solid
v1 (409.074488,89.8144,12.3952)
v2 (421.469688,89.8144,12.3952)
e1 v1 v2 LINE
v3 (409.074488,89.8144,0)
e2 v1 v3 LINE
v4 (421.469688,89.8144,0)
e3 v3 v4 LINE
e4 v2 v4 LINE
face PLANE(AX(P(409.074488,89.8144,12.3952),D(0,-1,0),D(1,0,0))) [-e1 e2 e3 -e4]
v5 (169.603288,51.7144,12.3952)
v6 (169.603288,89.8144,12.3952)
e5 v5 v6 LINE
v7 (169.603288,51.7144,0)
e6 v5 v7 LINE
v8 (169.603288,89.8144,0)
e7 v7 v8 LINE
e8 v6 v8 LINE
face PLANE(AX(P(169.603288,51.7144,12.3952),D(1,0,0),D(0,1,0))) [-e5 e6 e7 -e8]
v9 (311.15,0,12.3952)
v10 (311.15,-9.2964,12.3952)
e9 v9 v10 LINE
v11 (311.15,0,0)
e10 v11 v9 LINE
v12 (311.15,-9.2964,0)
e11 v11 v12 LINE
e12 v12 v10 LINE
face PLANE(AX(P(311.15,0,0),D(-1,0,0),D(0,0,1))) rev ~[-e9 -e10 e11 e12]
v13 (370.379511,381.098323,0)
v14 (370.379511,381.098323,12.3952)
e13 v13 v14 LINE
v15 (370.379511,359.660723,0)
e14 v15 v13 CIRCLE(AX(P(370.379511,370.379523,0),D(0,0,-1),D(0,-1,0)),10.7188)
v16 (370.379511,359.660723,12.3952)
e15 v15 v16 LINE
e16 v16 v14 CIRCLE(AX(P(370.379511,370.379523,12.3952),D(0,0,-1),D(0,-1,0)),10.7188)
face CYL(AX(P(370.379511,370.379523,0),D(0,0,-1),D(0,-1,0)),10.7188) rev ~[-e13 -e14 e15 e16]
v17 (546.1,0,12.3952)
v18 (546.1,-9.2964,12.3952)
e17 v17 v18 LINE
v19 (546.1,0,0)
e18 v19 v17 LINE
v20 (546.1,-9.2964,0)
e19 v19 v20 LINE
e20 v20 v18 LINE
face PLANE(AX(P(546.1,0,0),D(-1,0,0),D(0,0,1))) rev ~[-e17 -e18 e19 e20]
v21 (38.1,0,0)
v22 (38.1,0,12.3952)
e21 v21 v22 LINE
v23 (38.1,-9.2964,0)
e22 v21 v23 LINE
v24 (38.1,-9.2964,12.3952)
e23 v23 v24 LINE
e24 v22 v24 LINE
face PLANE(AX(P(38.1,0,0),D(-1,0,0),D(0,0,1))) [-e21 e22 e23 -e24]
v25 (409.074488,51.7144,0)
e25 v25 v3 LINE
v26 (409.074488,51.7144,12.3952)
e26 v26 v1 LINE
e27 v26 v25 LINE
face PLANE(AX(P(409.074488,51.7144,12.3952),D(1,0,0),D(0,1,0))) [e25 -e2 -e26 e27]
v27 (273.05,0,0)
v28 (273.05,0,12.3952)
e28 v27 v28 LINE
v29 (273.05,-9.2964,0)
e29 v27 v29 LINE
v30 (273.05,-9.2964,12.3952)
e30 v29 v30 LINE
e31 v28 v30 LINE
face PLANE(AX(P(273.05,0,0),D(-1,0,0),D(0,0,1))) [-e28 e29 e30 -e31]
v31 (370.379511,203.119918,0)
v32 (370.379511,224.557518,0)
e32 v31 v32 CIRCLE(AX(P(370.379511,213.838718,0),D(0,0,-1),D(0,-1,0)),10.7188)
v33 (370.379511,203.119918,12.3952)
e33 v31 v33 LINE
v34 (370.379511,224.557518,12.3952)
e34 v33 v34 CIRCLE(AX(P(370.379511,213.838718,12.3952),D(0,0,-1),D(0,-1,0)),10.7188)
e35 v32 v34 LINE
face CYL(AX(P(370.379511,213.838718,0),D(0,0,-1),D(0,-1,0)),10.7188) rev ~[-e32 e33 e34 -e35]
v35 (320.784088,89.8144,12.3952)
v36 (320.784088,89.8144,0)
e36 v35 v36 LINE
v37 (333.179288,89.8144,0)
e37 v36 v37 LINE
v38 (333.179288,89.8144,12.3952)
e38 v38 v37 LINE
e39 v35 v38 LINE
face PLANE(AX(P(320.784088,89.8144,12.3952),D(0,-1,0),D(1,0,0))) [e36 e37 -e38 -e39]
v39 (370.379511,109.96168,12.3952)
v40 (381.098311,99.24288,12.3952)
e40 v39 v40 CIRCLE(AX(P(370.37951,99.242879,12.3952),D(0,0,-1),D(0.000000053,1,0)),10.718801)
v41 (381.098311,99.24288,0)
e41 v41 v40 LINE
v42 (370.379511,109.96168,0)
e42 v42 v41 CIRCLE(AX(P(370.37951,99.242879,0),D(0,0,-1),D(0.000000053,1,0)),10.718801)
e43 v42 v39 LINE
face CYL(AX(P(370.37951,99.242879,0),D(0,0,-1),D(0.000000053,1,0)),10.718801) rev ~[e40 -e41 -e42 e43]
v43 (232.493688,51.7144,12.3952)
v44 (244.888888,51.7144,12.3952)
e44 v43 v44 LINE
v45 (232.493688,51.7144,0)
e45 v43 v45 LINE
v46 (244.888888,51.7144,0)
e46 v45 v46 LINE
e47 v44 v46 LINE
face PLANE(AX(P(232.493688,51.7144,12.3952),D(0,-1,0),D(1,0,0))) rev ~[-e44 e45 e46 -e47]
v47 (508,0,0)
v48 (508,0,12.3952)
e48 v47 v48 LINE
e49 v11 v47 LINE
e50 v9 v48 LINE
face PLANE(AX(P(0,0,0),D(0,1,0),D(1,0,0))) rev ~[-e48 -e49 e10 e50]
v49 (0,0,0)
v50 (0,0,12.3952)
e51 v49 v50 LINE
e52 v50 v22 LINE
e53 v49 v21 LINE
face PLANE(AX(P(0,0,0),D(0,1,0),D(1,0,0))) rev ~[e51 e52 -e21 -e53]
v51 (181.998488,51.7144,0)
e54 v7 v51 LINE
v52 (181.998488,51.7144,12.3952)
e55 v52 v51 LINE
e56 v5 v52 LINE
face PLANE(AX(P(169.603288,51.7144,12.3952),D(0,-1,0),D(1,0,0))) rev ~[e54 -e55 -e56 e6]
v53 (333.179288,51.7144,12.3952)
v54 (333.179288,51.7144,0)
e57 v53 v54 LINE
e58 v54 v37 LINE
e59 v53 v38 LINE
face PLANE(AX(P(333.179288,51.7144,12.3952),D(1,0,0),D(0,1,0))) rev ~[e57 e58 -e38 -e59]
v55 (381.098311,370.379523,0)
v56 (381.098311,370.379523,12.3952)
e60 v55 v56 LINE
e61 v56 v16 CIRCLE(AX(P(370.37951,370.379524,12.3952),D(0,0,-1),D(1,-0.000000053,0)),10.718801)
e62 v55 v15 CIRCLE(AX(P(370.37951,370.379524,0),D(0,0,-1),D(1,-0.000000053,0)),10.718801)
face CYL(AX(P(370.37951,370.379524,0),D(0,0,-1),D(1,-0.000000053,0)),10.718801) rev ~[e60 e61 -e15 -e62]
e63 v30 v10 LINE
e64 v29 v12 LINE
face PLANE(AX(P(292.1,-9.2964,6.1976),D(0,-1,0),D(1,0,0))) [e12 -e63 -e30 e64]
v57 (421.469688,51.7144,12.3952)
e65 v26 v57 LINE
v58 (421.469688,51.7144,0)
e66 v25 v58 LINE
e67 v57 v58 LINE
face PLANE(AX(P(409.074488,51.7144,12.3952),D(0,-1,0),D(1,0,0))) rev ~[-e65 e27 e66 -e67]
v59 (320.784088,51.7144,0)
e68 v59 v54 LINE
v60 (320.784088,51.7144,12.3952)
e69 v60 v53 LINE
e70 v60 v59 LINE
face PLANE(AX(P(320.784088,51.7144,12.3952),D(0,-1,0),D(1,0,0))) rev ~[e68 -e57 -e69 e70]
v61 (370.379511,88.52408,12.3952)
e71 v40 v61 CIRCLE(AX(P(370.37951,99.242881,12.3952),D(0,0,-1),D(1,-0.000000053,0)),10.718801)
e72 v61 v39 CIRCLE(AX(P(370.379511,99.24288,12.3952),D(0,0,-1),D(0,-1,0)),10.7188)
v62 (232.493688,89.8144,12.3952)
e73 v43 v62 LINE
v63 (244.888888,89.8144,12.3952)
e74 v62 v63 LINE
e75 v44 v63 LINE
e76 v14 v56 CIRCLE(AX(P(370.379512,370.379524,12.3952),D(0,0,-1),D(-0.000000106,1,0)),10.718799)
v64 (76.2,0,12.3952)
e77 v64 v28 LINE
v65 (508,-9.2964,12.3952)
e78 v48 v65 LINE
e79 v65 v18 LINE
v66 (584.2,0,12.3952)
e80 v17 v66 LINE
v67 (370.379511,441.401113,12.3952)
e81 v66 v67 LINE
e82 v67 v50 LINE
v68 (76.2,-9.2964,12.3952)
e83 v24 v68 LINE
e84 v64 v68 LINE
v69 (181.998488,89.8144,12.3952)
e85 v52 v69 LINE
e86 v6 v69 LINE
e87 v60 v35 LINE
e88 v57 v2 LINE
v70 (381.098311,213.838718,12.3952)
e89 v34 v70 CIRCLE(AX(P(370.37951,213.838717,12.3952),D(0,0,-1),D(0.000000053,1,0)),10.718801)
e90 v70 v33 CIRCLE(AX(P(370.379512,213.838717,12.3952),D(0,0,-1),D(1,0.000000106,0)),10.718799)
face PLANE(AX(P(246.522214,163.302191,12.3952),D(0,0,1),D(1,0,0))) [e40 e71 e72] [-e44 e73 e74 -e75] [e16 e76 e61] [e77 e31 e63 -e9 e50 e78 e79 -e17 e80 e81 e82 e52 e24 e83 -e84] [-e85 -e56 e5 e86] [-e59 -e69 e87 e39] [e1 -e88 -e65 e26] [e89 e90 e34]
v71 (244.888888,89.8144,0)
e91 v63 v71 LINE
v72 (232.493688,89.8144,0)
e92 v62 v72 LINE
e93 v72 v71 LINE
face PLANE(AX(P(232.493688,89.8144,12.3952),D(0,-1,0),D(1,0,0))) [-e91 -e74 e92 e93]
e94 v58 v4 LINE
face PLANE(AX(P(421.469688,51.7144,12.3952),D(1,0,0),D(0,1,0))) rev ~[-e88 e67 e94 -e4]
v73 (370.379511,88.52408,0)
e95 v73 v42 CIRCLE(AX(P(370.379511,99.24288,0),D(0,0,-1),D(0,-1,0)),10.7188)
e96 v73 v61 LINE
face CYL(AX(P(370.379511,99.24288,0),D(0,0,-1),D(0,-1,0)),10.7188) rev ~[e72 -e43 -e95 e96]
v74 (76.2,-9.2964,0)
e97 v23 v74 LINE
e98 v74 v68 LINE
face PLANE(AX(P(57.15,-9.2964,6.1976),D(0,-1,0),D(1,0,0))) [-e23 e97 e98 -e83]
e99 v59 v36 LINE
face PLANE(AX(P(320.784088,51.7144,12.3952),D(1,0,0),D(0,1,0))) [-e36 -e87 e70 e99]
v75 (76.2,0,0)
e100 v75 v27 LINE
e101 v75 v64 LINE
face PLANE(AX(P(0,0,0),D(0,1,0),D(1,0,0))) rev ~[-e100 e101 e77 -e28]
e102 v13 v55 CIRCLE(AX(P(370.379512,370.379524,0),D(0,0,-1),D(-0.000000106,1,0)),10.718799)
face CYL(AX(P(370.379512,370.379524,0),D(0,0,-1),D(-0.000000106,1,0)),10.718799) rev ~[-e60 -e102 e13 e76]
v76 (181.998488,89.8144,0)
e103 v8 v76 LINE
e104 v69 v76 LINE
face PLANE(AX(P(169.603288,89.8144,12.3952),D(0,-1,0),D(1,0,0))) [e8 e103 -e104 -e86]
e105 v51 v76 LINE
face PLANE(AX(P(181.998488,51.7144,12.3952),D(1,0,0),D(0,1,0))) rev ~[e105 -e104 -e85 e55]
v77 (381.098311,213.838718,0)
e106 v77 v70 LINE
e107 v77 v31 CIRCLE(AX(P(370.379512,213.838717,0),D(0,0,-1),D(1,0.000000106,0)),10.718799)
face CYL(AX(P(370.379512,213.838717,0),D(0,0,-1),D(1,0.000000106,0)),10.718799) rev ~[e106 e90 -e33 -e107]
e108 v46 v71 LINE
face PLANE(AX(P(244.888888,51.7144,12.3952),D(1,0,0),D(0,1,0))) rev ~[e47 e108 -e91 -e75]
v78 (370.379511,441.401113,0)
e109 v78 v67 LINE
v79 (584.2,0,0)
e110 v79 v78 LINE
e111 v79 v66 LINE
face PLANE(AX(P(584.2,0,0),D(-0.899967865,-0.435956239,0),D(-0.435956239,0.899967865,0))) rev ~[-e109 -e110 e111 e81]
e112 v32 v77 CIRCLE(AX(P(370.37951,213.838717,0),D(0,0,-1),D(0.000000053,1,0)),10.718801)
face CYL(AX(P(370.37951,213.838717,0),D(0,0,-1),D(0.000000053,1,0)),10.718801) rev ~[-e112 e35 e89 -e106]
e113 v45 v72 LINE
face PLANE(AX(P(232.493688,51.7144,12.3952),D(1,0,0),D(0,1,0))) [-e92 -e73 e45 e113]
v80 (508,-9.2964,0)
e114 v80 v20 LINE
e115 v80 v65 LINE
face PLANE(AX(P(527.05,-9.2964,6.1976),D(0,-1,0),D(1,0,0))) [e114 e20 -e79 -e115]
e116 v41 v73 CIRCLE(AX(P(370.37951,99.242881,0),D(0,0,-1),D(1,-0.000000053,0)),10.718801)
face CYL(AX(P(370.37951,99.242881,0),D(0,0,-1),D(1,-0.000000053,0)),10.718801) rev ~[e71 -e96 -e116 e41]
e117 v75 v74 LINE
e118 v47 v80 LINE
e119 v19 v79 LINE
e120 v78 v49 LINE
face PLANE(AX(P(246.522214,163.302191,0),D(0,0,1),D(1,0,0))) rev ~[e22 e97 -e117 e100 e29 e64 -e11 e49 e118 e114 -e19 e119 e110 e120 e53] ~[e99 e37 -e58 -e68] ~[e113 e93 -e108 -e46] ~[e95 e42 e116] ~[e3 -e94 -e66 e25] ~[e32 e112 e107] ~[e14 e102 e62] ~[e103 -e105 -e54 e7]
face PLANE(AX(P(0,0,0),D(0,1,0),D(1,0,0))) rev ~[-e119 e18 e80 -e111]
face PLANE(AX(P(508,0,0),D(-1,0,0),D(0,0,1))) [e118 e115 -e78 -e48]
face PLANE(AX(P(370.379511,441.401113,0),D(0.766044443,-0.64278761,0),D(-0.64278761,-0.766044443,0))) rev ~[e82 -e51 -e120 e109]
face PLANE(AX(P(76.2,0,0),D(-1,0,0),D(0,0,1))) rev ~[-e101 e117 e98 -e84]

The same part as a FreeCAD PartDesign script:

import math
import FreeCAD as App
import Part
import Sketcher

V = App.Vector
Q = App.Units.Quantity

doc = App.newDocument("Part")
body = doc.addObject("PartDesign::Body", "Body")

# Sketch on XY plane
sketch1 = body.newObject("Sketcher::SketchObject", "Sketch")
sketch1.AttachmentSupport = (doc.getObject("XY_Plane"), [""])
sketch1.MapMode = "FlatFace"
sketch1.addGeometry([
    Part.LineSegment(V(370.379511, 441.401113, 0), V(0, 0, 0)),  # 0
    Part.LineSegment(V(0, 0, 0), V(584.2, 0, 0)),  # 1
    Part.LineSegment(V(584.2, 0, 0), V(370.379511, 441.401113, 0)),  # 2
    Part.ArcOfCircle(Part.Circle(V(370.379511, 99.24288, 0), V(0, 0, 1), 10.7188), math.radians(90), math.radians(270)),  # 3
    Part.ArcOfCircle(Part.Circle(V(370.37951, 99.242879, 0), V(0, 0, 1), 10.718801), math.radians(0.000003), math.radians(89.999997)),  # 4
    Part.ArcOfCircle(Part.Circle(V(370.37951, 99.242881, 0), V(0, 0, 1), 10.718801), math.radians(-89.999997), math.radians(-0.000003)),  # 5
    Part.ArcOfCircle(Part.Circle(V(370.379511, 213.838718, 0), V(0, 0, 1), 10.7188), math.radians(90), math.radians(270)),  # 6
    Part.ArcOfCircle(Part.Circle(V(370.37951, 213.838717, 0), V(0, 0, 1), 10.718801), math.radians(0.000003), math.radians(89.999997)),  # 7
    Part.ArcOfCircle(Part.Circle(V(370.379512, 213.838717, 0), V(0, 0, 1), 10.718799), math.radians(-90.000006), math.radians(0.000006)),  # 8
    Part.ArcOfCircle(Part.Circle(V(370.379511, 370.379523, 0), V(0, 0, 1), 10.7188), math.radians(90), math.radians(270)),  # 9
    Part.ArcOfCircle(Part.Circle(V(370.379512, 370.379524, 0), V(0, 0, 1), 10.718799), math.radians(-0.000006), math.radians(90.000006)),  # 10
    Part.ArcOfCircle(Part.Circle(V(370.37951, 370.379524, 0), V(0, 0, 1), 10.718801), math.radians(-89.999997), math.radians(-0.000003)),  # 11
], False)
sketch1.addConstraint([
    Sketcher.Constraint("Coincident", 0, 2, 1, 1),
    Sketcher.Constraint("Coincident", 1, 2, 2, 1),
    Sketcher.Constraint("Coincident", 2, 2, 0, 1),
    Sketcher.Constraint("Tangent", 3, 1, 4, 2),
    Sketcher.Constraint("Tangent", 4, 1, 5, 2),
    Sketcher.Constraint("Tangent", 5, 1, 3, 2),
    Sketcher.Constraint("Tangent", 6, 1, 7, 2),
    Sketcher.Constraint("Tangent", 7, 1, 8, 2),
    Sketcher.Constraint("Tangent", 8, 1, 6, 2),
    Sketcher.Constraint("Tangent", 9, 1, 10, 2),
    Sketcher.Constraint("Tangent", 10, 1, 11, 2),
    Sketcher.Constraint("Tangent", 11, 1, 9, 2),
    Sketcher.Constraint("Horizontal", 1),
    Sketcher.Constraint("Coincident", 0, 2, -1, 1),
    Sketcher.Constraint("Equal", 5, 6),
    Sketcher.Constraint("Equal", 8, 9),
    Sketcher.Constraint("Horizontal", 5, 3, 4, 1),
    Sketcher.Constraint("Horizontal", 8, 3, 7, 1),
    Sketcher.Constraint("Horizontal", 11, 3, 10, 1),
    Sketcher.Constraint("Vertical", 5, 3, 6, 3),
    Sketcher.Constraint("Vertical", 8, 3, 9, 3),
    Sketcher.Constraint("Vertical", 11, 3, 2, 2),
    Sketcher.Constraint("Vertical", 2, 2, 3, 1),
    Sketcher.Constraint("Vertical", 3, 1, 5, 1),
    Sketcher.Constraint("Vertical", 5, 1, 6, 1),
    Sketcher.Constraint("Vertical", 6, 1, 8, 1),
    Sketcher.Constraint("Vertical", 8, 1, 9, 1),
    Sketcher.Constraint("Vertical", 9, 1, 11, 1),
    Sketcher.Constraint("DistanceX", 1, 1, 1, 2, Q("23 in")),
    Sketcher.Constraint("Angle", 0, Q("-130 deg")),
    Sketcher.Constraint("Radius", 3, Q("0.422 in")),
    Sketcher.Constraint("DistanceY", -1, 1, 3, 3, Q("3.9072 in")),
    Sketcher.Constraint("Distance", 0, 576.20823),
    Sketcher.Constraint("DistanceY", -1, 1, 6, 3, 213.838718),
    Sketcher.Constraint("DistanceY", 10, 3, 2, 2, 71.021589),
])
pad1 = body.newObject("PartDesign::Pad", "Pad")
pad1.Profile = sketch1
pad1.Length = Q("0.488 in")

# Sketch on XZ plane
sketch2 = body.newObject("Sketcher::SketchObject", "Sketch001")
sketch2.AttachmentSupport = (doc.getObject("XZ_Plane"), [""])
sketch2.MapMode = "FlatFace"
sketch2.addGeometry([
    Part.LineSegment(V(38.1, 12.3952, 0), V(38.1, 0, 0)),  # 0
    Part.LineSegment(V(38.1, 0, 0), V(76.2, 0, 0)),  # 1
    Part.LineSegment(V(76.2, 0, 0), V(76.2, 12.3952, 0)),  # 2
    Part.LineSegment(V(76.2, 12.3952, 0), V(38.1, 12.3952, 0)),  # 3
    Part.LineSegment(V(273.05, 12.3952, 0), V(273.05, 0, 0)),  # 4
    Part.LineSegment(V(273.05, 0, 0), V(311.15, 0, 0)),  # 5
    Part.LineSegment(V(311.15, 0, 0), V(311.15, 12.3952, 0)),  # 6
    Part.LineSegment(V(311.15, 12.3952, 0), V(273.05, 12.3952, 0)),  # 7
    Part.LineSegment(V(508, 12.3952, 0), V(508, 0, 0)),  # 8
    Part.LineSegment(V(508, 0, 0), V(546.1, 0, 0)),  # 9
    Part.LineSegment(V(546.1, 0, 0), V(546.1, 12.3952, 0)),  # 10
    Part.LineSegment(V(546.1, 12.3952, 0), V(508, 12.3952, 0)),  # 11
], False)
sketch2.addConstraint([
    Sketcher.Constraint("Coincident", 0, 2, 1, 1),
    Sketcher.Constraint("Coincident", 1, 2, 2, 1),
    Sketcher.Constraint("Coincident", 2, 2, 3, 1),
    Sketcher.Constraint("Coincident", 3, 2, 0, 1),
    Sketcher.Constraint("Coincident", 4, 2, 5, 1),
    Sketcher.Constraint("Coincident", 5, 2, 6, 1),
    Sketcher.Constraint("Coincident", 6, 2, 7, 1),
    Sketcher.Constraint("Coincident", 7, 2, 4, 1),
    Sketcher.Constraint("Coincident", 8, 2, 9, 1),
    Sketcher.Constraint("Coincident", 9, 2, 10, 1),
    Sketcher.Constraint("Coincident", 10, 2, 11, 1),
    Sketcher.Constraint("Coincident", 11, 2, 8, 1),
    Sketcher.Constraint("Vertical", 0),
    Sketcher.Constraint("Horizontal", 1),
    Sketcher.Constraint("Vertical", 2),
    Sketcher.Constraint("Horizontal", 3),
    Sketcher.Constraint("Vertical", 4),
    Sketcher.Constraint("Horizontal", 5),
    Sketcher.Constraint("Vertical", 6),
    Sketcher.Constraint("Horizontal", 7),
    Sketcher.Constraint("Vertical", 8),
    Sketcher.Constraint("Horizontal", 9),
    Sketcher.Constraint("Vertical", 10),
    Sketcher.Constraint("Horizontal", 11),
    Sketcher.Constraint("PointOnObject", 0, 2, -1),
    Sketcher.Constraint("PointOnObject", 4, 2, -1),
    Sketcher.Constraint("PointOnObject", 8, 2, -1),
    Sketcher.Constraint("Horizontal", 3, 2, 6, 2),
    Sketcher.Constraint("Horizontal", 7, 2, 10, 2),
    Sketcher.Constraint("Equal", 3, 5),
    Sketcher.Constraint("Equal", 7, 9),
    Sketcher.Constraint("DistanceX", 1, 1, 1, 2, Q("1.5 in")),
    Sketcher.Constraint("DistanceX", -1, 1, 1, 2, Q("3 in")),
    Sketcher.Constraint("DistanceX", -1, 1, 8, 2, Q("20 in")),
    Sketcher.Constraint("DistanceY", 0, 2, 0, 1, Q("0.488 in")),
    Sketcher.Constraint("DistanceX", -1, 1, 4, 2, Q("10.75 in")),
])
pad2 = body.newObject("PartDesign::Pad", "Pad001")
pad2.Profile = sketch2
pad2.Length = Q("0.366 in")

# Sketch on XY plane
sketch3 = body.newObject("Sketcher::SketchObject", "Sketch002")
sketch3.AttachmentSupport = (doc.getObject("XY_Plane"), [""])
sketch3.MapMode = "FlatFace"
sketch3.AttachmentOffset = App.Placement(V(0, 0, 0.488 * 25.4), App.Rotation())
sketch3.addGeometry([
    Part.LineSegment(V(232.493688, 89.8144, 0), V(232.493688, 51.7144, 0)),  # 0
    Part.LineSegment(V(232.493688, 51.7144, 0), V(244.888888, 51.7144, 0)),  # 1
    Part.LineSegment(V(244.888888, 51.7144, 0), V(244.888888, 89.8144, 0)),  # 2
    Part.LineSegment(V(244.888888, 89.8144, 0), V(232.493688, 89.8144, 0)),  # 3
    Part.LineSegment(V(320.784088, 89.8144, 0), V(320.784088, 51.7144, 0)),  # 4
    Part.LineSegment(V(320.784088, 51.7144, 0), V(333.179288, 51.7144, 0)),  # 5
    Part.LineSegment(V(333.179288, 51.7144, 0), V(333.179288, 89.8144, 0)),  # 6
    Part.LineSegment(V(333.179288, 89.8144, 0), V(320.784088, 89.8144, 0)),  # 7
    Part.LineSegment(V(409.074488, 89.8144, 0), V(409.074488, 51.7144, 0)),  # 8
    Part.LineSegment(V(409.074488, 51.7144, 0), V(421.469688, 51.7144, 0)),  # 9
    Part.LineSegment(V(421.469688, 51.7144, 0), V(421.469688, 89.8144, 0)),  # 10
    Part.LineSegment(V(421.469688, 89.8144, 0), V(409.074488, 89.8144, 0)),  # 11
    Part.LineSegment(V(169.603288, 89.8144, 0), V(169.603288, 51.7144, 0)),  # 12
    Part.LineSegment(V(169.603288, 51.7144, 0), V(181.998488, 51.7144, 0)),  # 13
    Part.LineSegment(V(181.998488, 51.7144, 0), V(181.998488, 89.8144, 0)),  # 14
    Part.LineSegment(V(181.998488, 89.8144, 0), V(169.603288, 89.8144, 0)),  # 15
], False)
sketch3.addConstraint([
    Sketcher.Constraint("Coincident", 0, 2, 1, 1),
    Sketcher.Constraint("Coincident", 1, 2, 2, 1),
    Sketcher.Constraint("Coincident", 2, 2, 3, 1),
    Sketcher.Constraint("Coincident", 3, 2, 0, 1),
    Sketcher.Constraint("Coincident", 4, 2, 5, 1),
    Sketcher.Constraint("Coincident", 5, 2, 6, 1),
    Sketcher.Constraint("Coincident", 6, 2, 7, 1),
    Sketcher.Constraint("Coincident", 7, 2, 4, 1),
    Sketcher.Constraint("Coincident", 8, 2, 9, 1),
    Sketcher.Constraint("Coincident", 9, 2, 10, 1),
    Sketcher.Constraint("Coincident", 10, 2, 11, 1),
    Sketcher.Constraint("Coincident", 11, 2, 8, 1),
    Sketcher.Constraint("Coincident", 12, 2, 13, 1),
    Sketcher.Constraint("Coincident", 13, 2, 14, 1),
    Sketcher.Constraint("Coincident", 14, 2, 15, 1),
    Sketcher.Constraint("Coincident", 15, 2, 12, 1),
    Sketcher.Constraint("Vertical", 0),
    Sketcher.Constraint("Horizontal", 1),
    Sketcher.Constraint("Vertical", 2),
    Sketcher.Constraint("Horizontal", 3),
    Sketcher.Constraint("Vertical", 4),
    Sketcher.Constraint("Horizontal", 5),
    Sketcher.Constraint("Vertical", 6),
    Sketcher.Constraint("Horizontal", 7),
    Sketcher.Constraint("Vertical", 8),
    Sketcher.Constraint("Horizontal", 9),
    Sketcher.Constraint("Vertical", 10),
    Sketcher.Constraint("Horizontal", 11),
    Sketcher.Constraint("Vertical", 12),
    Sketcher.Constraint("Horizontal", 13),
    Sketcher.Constraint("Vertical", 14),
    Sketcher.Constraint("Horizontal", 15),
    Sketcher.Constraint("Horizontal", 1, 2, 4, 2),
    Sketcher.Constraint("Horizontal", 3, 2, 6, 2),
    Sketcher.Constraint("Horizontal", 5, 2, 8, 2),
    Sketcher.Constraint("Horizontal", 7, 2, 10, 2),
    Sketcher.Constraint("Horizontal", 9, 2, 12, 2),
    Sketcher.Constraint("Horizontal", 11, 2, 14, 2),
    Sketcher.Constraint("Equal", 3, 5),
    Sketcher.Constraint("Equal", 7, 9),
    Sketcher.Constraint("Equal", 11, 13),
    Sketcher.Constraint("DistanceY", 0, 2, 0, 1, Q("1.5 in")),
    Sketcher.Constraint("DistanceX", 1, 1, 1, 2, Q("0.488 in")),
    Sketcher.Constraint("DistanceY", -1, 1, 0, 2, Q("2.036 in")),
    Sketcher.Constraint("DistanceX", 1, 2, 4, 2, Q("2.988 in")),
    Sketcher.Constraint("DistanceX", 5, 2, 8, 2, Q("2.988 in")),
    Sketcher.Constraint("DistanceX", 12, 2, 0, 2, Q("2.476 in")),
    Sketcher.Constraint("DistanceX", -1, 1, 0, 2, 232.493688),
])
pocket1 = body.newObject("PartDesign::Pocket", "Pocket")
pocket1.Profile = sketch3
pocket1.Type = "ThroughAll"

doc.recompute()
